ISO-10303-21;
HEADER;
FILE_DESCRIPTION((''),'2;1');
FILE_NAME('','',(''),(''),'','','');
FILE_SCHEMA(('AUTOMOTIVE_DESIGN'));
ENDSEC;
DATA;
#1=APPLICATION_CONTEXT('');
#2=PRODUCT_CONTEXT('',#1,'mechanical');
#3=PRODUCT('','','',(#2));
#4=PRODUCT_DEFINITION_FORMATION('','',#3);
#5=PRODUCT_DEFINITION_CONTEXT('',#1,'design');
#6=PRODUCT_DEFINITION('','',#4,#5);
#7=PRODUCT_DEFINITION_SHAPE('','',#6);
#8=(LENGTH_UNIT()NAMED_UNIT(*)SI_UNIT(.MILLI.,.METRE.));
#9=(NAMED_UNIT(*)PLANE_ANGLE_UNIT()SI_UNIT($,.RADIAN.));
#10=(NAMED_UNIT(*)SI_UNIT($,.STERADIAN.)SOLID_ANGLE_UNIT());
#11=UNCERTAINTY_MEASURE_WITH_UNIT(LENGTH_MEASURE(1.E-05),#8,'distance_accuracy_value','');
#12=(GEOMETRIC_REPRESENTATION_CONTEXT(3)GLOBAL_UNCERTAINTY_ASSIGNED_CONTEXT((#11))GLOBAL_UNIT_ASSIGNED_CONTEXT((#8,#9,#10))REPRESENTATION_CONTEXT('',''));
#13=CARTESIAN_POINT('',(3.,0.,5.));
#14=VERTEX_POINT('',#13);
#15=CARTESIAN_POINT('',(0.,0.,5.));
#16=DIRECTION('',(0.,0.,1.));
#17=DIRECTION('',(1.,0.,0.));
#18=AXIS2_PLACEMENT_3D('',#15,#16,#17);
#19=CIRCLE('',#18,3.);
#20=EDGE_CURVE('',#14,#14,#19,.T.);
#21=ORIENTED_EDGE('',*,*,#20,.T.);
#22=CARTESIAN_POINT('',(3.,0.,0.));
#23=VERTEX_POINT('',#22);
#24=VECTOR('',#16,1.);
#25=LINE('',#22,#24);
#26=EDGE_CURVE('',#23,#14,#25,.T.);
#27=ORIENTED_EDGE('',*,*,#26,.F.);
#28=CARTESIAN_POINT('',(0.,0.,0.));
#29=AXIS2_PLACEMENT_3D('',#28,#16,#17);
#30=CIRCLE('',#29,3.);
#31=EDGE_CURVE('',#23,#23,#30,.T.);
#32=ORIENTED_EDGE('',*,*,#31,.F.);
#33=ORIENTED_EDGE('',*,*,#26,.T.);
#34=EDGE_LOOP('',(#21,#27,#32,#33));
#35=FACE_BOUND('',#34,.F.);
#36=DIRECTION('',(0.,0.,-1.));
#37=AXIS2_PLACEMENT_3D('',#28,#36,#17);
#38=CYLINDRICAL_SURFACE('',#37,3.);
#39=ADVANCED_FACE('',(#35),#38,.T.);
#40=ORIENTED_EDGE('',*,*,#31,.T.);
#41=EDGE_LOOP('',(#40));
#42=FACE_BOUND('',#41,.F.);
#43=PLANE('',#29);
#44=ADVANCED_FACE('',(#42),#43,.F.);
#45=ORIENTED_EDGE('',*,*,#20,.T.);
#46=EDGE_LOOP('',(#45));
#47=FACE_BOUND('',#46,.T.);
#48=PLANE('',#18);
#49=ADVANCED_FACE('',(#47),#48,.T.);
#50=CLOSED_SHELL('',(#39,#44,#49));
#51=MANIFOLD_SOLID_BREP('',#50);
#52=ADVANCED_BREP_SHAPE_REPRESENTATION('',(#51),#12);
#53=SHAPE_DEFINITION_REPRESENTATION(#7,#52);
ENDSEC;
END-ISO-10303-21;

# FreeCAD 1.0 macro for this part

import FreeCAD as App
import Part
import Sketcher
from FreeCAD import Vector
Q = App.Units.Quantity

doc = App.newDocument("Part")
body = doc.addObject("PartDesign::Body", "Body")

# Sketch on XY plane
sketch1 = body.newObject("Sketcher::SketchObject", "Sketch")
sketch1.AttachmentSupport = (doc.getObject("XY_Plane"), [""])
sketch1.MapMode = "FlatFace"
sketch1.addGeometry(Part.Circle(Vector(0, 0, 0), Vector(0, 0, 1), 3), False)
sketch1.addConstraint([
    Sketcher.Constraint("Coincident", 0, 3, -1, 1),
    Sketcher.Constraint("Diameter", 0, Q("6 mm")),
])
pad1 = body.newObject("PartDesign::Pad", "Pad")
pad1.Profile = sketch1
pad1.Length = 5

doc.recompute()
